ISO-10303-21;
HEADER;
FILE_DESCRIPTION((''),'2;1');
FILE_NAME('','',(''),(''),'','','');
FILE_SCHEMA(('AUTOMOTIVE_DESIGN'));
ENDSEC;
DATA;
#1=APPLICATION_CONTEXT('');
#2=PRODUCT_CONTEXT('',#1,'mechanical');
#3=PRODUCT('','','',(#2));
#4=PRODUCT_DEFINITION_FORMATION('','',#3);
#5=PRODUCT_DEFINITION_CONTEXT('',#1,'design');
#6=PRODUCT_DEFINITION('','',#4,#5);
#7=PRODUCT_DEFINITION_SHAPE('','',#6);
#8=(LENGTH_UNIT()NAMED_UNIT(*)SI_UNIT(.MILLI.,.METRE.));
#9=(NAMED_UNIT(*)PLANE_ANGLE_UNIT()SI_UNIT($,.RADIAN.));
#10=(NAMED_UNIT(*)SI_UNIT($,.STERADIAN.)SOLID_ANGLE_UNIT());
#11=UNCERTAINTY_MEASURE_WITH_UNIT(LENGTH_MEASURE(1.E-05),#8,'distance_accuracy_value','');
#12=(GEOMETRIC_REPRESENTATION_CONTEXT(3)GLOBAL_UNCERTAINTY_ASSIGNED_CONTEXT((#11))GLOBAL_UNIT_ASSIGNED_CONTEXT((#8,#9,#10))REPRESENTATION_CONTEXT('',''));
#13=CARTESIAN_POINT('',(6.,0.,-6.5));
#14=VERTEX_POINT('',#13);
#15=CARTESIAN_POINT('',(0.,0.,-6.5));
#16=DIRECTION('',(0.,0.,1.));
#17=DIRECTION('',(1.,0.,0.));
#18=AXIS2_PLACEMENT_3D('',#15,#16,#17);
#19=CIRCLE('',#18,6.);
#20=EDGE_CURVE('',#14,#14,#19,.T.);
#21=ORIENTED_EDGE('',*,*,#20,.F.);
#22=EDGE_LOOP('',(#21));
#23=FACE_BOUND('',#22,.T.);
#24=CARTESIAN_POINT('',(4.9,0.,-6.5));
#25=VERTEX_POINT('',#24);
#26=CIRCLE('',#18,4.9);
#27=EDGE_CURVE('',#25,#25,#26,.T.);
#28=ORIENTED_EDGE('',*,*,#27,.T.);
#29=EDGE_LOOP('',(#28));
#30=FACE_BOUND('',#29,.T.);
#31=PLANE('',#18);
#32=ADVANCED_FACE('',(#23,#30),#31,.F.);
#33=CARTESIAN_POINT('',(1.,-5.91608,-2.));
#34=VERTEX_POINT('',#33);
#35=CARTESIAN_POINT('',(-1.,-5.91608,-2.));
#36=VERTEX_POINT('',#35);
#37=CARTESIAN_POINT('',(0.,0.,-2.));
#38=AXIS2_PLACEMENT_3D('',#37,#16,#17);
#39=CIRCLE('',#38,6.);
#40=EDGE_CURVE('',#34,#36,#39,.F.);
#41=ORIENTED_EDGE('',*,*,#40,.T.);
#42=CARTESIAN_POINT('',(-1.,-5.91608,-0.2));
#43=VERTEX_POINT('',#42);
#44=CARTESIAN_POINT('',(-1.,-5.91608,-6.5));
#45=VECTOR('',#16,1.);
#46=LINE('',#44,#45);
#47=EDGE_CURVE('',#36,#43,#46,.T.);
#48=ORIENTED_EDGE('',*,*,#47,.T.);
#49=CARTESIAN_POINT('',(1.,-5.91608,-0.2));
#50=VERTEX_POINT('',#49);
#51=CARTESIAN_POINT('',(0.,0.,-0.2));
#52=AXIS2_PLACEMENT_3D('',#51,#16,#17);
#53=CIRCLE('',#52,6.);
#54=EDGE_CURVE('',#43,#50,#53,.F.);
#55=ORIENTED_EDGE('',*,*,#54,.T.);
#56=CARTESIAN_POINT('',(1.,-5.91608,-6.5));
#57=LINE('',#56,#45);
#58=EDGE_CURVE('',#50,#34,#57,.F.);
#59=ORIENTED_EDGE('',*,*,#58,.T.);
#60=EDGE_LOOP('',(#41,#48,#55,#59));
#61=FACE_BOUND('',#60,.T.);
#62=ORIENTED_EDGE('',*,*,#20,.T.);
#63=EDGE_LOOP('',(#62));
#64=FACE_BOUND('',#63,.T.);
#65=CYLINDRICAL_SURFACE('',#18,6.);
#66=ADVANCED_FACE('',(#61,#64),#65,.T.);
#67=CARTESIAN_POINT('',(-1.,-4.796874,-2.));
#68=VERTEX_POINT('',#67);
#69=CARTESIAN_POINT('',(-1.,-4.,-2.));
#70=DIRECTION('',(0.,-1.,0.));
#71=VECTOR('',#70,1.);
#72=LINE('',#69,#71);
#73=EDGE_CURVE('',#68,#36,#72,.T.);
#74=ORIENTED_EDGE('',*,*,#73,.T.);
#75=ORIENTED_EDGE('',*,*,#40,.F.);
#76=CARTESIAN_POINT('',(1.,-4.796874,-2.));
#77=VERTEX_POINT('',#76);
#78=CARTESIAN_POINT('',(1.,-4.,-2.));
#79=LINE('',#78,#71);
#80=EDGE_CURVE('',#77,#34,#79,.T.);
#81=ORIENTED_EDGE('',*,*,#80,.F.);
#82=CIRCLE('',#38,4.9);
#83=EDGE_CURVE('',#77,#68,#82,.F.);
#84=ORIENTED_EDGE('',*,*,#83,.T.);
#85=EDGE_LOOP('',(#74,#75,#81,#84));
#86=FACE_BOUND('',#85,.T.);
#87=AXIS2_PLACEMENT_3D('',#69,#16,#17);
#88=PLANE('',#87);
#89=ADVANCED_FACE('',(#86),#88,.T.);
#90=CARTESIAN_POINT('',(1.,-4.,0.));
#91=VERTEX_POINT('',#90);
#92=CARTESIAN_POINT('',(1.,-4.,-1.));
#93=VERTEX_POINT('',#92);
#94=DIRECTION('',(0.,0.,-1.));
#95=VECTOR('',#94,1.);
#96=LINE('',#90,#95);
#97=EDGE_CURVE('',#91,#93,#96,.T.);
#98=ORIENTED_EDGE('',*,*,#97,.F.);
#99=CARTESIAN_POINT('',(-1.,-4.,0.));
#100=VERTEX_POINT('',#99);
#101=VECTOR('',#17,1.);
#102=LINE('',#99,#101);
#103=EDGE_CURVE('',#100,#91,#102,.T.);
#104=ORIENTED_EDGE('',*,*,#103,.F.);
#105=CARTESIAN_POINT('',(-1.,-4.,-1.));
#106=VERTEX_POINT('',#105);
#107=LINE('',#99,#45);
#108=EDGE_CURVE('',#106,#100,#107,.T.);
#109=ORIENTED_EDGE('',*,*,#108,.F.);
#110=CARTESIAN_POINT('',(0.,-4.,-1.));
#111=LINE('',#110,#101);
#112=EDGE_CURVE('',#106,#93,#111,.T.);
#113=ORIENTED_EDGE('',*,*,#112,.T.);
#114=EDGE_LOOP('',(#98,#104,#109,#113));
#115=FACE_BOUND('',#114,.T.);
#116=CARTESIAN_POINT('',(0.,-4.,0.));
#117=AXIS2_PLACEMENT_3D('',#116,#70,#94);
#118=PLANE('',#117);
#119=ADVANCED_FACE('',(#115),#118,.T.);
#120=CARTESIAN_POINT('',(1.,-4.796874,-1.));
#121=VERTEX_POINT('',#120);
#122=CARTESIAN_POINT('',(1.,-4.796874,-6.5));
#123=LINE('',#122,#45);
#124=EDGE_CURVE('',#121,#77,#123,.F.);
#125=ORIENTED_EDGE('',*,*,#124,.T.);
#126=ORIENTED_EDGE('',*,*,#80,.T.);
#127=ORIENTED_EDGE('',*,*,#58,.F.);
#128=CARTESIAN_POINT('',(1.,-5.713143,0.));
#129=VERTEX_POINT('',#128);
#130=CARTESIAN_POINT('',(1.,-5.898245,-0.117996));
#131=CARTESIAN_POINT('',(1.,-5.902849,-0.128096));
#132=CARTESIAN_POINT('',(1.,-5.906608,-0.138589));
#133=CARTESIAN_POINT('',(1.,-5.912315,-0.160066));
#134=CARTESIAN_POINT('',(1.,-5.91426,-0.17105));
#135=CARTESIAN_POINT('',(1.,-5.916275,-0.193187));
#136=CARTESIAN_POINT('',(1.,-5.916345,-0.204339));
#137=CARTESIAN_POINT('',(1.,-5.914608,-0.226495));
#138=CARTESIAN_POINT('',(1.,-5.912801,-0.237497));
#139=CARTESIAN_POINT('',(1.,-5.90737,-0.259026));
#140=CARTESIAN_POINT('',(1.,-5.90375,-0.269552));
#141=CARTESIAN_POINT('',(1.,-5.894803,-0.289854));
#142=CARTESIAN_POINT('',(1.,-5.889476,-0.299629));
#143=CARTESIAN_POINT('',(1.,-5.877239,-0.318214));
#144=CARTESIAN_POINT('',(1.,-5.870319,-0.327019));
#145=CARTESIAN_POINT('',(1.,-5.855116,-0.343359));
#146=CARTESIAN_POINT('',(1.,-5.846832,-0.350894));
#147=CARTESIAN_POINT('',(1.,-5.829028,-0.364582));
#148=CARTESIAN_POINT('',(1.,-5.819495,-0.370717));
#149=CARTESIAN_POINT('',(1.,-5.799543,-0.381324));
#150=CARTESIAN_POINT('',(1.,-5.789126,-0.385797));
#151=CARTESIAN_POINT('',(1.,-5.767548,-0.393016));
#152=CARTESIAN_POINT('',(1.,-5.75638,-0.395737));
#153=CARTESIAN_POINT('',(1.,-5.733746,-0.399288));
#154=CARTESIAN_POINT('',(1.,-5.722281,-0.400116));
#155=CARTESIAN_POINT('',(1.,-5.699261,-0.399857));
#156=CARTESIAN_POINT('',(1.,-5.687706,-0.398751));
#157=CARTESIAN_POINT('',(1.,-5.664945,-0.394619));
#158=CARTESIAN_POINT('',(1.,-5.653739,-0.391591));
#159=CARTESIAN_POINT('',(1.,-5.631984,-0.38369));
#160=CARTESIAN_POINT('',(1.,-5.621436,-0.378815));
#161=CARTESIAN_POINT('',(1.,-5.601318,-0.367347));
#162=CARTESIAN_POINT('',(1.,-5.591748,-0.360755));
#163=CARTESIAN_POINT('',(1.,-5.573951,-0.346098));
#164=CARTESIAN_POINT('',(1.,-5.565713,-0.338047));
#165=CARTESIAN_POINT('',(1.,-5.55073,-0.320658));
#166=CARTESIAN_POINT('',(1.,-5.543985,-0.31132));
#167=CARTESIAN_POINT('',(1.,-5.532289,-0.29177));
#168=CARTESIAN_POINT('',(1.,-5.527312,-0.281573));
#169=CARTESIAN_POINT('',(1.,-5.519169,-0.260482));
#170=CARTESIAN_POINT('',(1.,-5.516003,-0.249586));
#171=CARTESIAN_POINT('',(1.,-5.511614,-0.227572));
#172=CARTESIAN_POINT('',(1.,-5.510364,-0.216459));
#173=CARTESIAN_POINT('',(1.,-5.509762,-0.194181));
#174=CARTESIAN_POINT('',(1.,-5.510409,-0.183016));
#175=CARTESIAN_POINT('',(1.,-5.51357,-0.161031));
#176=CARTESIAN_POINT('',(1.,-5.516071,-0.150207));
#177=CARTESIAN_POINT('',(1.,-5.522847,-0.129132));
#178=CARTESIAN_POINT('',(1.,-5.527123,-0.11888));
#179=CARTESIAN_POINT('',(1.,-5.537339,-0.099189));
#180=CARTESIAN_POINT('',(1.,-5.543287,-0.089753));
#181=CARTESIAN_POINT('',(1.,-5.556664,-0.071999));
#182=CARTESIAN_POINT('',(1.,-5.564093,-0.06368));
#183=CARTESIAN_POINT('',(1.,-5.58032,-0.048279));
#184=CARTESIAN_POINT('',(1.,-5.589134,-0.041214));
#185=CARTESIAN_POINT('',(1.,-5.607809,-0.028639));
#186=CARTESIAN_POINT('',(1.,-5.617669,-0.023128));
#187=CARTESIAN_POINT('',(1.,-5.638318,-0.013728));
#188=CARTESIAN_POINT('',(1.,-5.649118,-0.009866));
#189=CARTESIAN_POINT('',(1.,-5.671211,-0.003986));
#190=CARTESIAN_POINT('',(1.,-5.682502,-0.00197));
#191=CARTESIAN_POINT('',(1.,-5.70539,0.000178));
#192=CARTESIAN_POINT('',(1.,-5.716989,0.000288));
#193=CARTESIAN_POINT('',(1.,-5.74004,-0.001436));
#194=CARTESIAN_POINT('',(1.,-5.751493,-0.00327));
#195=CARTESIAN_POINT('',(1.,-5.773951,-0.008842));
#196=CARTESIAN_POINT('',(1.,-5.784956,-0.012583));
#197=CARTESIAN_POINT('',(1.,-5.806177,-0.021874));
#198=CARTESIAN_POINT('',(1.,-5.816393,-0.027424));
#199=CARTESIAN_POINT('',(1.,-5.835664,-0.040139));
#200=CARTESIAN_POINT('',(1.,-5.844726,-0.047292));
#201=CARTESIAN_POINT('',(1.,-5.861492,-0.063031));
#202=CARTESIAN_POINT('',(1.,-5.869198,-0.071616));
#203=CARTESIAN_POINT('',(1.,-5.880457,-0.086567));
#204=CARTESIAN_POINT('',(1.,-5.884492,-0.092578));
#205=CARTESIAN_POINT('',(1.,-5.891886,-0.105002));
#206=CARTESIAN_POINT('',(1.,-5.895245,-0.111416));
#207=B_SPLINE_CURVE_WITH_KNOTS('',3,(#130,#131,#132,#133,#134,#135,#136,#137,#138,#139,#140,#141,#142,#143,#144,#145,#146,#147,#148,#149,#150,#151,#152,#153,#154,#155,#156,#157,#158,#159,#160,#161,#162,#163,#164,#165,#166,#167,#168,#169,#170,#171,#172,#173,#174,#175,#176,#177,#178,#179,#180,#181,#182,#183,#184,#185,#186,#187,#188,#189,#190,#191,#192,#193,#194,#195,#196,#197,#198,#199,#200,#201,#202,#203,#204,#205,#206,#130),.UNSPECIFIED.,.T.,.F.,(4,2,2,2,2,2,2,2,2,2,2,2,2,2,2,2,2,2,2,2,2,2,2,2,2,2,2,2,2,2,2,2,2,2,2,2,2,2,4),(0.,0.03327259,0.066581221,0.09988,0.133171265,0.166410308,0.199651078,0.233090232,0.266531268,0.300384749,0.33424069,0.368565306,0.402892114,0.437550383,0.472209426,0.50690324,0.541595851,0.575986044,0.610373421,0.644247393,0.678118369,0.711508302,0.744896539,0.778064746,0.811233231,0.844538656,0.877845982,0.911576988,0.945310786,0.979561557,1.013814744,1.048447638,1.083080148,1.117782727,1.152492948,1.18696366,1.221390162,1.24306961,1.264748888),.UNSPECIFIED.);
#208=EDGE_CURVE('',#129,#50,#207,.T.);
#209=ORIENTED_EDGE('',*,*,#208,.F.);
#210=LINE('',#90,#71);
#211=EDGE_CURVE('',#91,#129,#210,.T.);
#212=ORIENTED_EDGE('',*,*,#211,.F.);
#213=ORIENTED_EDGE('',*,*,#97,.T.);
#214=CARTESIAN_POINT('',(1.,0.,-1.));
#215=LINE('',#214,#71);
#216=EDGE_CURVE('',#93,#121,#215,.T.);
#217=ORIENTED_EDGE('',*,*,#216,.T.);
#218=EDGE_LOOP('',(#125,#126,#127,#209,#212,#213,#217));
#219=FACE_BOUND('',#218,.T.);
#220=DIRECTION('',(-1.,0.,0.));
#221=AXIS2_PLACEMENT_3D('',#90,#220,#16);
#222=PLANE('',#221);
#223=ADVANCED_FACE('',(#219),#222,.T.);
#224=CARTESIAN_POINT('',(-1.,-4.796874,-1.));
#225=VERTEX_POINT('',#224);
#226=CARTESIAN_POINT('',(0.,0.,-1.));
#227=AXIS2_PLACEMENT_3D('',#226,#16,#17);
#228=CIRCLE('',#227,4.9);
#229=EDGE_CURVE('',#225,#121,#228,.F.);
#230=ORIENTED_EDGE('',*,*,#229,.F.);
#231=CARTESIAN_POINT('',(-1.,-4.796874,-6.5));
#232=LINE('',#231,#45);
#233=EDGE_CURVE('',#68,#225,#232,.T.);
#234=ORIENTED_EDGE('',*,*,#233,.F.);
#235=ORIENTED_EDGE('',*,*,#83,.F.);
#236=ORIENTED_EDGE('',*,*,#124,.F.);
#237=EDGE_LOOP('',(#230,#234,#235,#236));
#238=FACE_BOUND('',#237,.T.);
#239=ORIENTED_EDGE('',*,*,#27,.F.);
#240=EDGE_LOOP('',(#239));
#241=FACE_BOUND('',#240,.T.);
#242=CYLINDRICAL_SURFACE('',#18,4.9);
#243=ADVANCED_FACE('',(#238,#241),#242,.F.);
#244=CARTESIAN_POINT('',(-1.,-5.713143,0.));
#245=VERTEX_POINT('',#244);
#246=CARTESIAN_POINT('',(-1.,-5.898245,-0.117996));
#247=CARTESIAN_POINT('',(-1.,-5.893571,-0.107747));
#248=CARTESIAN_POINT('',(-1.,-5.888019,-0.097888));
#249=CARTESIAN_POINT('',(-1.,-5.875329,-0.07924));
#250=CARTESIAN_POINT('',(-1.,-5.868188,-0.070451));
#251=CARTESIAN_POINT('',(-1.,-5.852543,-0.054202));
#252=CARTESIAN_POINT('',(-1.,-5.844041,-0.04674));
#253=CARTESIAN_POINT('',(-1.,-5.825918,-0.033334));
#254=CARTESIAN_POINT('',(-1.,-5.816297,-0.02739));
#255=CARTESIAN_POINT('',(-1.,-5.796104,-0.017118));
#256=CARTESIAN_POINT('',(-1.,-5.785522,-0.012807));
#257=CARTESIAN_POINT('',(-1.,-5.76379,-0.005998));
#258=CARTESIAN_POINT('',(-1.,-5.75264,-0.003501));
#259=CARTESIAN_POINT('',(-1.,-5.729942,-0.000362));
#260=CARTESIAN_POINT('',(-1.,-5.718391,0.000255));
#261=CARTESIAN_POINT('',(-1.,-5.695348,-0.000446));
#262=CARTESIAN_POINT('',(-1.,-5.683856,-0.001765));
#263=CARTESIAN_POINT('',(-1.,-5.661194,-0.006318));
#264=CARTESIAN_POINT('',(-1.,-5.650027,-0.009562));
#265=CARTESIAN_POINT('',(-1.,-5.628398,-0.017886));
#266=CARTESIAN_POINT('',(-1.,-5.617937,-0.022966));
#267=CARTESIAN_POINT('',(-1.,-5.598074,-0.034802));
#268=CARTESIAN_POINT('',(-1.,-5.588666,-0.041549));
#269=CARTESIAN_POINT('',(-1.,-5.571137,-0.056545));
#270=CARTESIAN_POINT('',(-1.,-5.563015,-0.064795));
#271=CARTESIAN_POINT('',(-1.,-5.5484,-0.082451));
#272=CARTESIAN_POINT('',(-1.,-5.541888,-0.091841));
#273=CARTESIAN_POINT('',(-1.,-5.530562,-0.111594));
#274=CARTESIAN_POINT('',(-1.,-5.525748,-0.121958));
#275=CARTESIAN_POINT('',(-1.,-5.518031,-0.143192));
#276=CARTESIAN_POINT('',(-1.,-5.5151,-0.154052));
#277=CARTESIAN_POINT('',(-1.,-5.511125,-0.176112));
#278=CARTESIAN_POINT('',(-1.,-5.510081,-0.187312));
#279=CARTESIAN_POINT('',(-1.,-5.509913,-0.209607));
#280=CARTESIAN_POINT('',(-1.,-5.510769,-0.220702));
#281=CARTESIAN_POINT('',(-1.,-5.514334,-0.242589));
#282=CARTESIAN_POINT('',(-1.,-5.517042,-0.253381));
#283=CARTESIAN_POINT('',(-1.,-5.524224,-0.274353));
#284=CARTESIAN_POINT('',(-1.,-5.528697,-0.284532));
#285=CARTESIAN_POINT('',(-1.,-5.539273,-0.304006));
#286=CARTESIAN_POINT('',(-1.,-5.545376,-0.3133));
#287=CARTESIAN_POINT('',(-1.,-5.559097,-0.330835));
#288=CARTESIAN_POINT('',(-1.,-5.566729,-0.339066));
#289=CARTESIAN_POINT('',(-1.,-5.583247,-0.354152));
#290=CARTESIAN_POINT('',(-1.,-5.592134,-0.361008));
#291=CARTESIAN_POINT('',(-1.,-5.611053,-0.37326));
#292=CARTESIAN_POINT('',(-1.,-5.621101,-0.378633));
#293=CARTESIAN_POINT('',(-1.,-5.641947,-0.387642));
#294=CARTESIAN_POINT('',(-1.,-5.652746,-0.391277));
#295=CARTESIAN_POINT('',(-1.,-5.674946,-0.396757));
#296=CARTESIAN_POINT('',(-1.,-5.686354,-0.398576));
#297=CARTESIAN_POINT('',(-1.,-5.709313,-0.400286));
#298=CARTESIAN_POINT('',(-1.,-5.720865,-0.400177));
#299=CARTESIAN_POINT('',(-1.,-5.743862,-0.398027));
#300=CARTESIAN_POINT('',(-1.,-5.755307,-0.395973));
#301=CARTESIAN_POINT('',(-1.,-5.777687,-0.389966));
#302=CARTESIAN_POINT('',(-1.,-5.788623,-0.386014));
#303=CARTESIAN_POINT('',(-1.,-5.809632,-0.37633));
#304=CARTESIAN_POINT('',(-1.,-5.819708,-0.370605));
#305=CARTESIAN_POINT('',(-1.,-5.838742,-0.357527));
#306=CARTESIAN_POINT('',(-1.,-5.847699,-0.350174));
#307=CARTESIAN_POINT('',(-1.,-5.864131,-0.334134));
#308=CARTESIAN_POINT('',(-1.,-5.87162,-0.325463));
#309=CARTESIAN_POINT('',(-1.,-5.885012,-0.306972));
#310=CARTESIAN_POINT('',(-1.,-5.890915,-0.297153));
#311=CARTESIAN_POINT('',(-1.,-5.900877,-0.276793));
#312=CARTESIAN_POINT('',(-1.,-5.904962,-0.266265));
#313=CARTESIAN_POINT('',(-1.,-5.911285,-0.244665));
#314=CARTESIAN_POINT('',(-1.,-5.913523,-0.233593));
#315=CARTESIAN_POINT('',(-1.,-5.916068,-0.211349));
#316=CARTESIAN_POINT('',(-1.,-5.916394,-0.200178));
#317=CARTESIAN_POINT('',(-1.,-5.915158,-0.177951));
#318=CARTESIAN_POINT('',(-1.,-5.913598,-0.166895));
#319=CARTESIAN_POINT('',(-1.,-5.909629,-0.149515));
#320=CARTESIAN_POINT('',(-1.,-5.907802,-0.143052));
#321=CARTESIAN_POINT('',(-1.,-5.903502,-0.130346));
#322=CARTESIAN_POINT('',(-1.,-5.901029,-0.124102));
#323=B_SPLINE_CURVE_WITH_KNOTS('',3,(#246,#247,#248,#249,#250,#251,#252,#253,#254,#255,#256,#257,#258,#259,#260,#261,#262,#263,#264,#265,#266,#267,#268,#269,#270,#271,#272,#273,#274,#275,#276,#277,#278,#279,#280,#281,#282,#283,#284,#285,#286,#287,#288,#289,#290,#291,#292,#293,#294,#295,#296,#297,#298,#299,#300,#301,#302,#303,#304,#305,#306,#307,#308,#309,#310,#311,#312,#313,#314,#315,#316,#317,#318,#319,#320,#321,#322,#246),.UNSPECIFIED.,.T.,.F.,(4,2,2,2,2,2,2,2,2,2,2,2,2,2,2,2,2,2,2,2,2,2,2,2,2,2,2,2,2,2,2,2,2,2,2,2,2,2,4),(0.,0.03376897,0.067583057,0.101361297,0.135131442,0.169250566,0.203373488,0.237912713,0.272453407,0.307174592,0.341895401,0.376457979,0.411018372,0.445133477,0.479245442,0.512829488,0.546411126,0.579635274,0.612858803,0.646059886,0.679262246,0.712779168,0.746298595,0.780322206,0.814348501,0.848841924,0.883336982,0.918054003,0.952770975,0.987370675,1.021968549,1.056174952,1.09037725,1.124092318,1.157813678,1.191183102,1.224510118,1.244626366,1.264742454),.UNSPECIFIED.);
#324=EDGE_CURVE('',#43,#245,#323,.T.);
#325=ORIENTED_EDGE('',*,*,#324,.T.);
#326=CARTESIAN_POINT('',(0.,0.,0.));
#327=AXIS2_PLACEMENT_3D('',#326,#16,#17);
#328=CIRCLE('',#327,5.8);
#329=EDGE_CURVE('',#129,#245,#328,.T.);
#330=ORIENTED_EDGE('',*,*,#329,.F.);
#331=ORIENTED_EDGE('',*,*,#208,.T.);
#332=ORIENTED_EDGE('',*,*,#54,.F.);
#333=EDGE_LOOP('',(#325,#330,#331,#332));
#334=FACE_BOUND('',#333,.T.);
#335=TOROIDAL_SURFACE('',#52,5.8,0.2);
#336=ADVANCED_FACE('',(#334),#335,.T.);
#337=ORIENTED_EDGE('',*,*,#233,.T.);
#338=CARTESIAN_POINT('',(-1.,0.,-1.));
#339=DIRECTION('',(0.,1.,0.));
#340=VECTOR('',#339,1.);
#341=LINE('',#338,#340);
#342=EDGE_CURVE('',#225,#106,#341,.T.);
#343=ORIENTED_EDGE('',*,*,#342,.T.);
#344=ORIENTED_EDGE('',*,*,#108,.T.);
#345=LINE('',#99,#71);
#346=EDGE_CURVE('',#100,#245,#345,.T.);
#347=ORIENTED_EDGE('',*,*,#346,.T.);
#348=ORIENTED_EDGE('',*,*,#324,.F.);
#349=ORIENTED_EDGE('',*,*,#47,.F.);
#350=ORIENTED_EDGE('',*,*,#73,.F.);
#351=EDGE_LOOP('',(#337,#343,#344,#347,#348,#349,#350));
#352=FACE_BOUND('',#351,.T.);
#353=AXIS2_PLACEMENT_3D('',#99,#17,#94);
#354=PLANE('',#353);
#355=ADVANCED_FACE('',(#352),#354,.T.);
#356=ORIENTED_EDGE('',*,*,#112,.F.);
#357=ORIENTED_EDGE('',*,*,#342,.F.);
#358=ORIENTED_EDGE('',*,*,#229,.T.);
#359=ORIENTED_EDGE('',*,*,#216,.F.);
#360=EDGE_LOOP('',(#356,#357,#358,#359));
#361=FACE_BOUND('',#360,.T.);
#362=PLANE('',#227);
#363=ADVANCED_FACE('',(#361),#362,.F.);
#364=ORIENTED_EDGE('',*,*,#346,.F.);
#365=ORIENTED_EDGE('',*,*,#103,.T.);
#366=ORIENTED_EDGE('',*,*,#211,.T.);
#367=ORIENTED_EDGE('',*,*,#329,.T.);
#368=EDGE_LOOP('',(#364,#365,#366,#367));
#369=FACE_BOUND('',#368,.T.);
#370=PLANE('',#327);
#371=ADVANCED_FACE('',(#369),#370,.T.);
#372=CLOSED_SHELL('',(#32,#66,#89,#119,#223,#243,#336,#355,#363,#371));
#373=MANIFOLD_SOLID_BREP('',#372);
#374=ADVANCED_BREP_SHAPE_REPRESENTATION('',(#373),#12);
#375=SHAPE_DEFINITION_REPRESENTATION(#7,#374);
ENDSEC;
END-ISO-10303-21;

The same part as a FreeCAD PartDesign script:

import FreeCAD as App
import Part
import Sketcher

V = App.Vector


def edges_at(feature, points):
    """Names of the edges that pass closest to the given points."""
    edges = feature.Shape.Edges
    near = lambda p: min(range(len(edges)), key=lambda i: edges[i].distToShape(Part.Vertex(*p))[0])
    return sorted({f"Edge{near(p) + 1}" for p in points})


def add_polygon(sketch, points):
    """Adds a closed chain of lines whose ends are joined by coincident constraints."""
    first, n = sketch.GeometryCount, len(points)
    for a, b in zip(points, points[1:] + points[:1]):
        sketch.addGeometry(Part.LineSegment(App.Vector(*a, 0), App.Vector(*b, 0)), False)
    for i in range(n):
        sketch.addConstraint(Sketcher.Constraint("Coincident", first + i, 2, first + (i + 1) % n, 1))

doc = App.newDocument("Part")
body = doc.addObject("PartDesign::Body", "Body")

# Sketch on XY plane
sketch1 = body.newObject("Sketcher::SketchObject", "Sketch")
sketch1.AttachmentSupport = (doc.getObject("XY_Plane"), [""])
sketch1.MapMode = "FlatFace"
sketch1.addGeometry([
    Part.Circle(V(0, 0, 0), V(0, 0, 1), 6),
    Part.Circle(V(0, 0, 0), V(0, 0, 1), 4.9),
], False)
sketch1.addConstraint([
    Sketcher.Constraint("Coincident", 0, 3, -1, 1),
    Sketcher.Constraint("Coincident", 1, 3, -1, 1),
    Sketcher.Constraint("Diameter", 0, 12.0),
    Sketcher.Constraint("Diameter", 1, 9.8),
])
pad1 = body.newObject("PartDesign::Pad", "Pad")
pad1.Profile = sketch1
pad1.Length = 6.5
pad1.Reversed = True

# Sketch on XY plane
sketch2 = body.newObject("Sketcher::SketchObject", "Sketch001")
sketch2.AttachmentSupport = (doc.getObject("XY_Plane"), [""])
sketch2.MapMode = "FlatFace"
sketch2.addGeometry(Part.Circle(V(0, 0, 0), V(0, 0, 1), 4.9), False)
sketch2.addConstraint([
    Sketcher.Constraint("Coincident", 0, 3, -1, 1),
    Sketcher.Constraint("Diameter", 0, 9.8),
])
pad2 = body.newObject("PartDesign::Pad", "Pad001")
pad2.Profile = sketch2
pad2.Length = 1
pad2.Reversed = True
doc.recompute()

fillet = body.newObject("PartDesign::Fillet", "Fillet")
fillet.Base = (pad2, edges_at(pad2, [(-6, 0, 0)]))
fillet.Radius = 0.2

# Sketch on XZ plane
sketch3 = body.newObject("Sketcher::SketchObject", "Sketch002")
sketch3.AttachmentSupport = (doc.getObject("XZ_Plane"), [""])
sketch3.MapMode = "FlatFace"
sketch3.AttachmentOffset = App.Placement(V(0, 0, 6), App.Rotation())
add_polygon(sketch3, [(-1, -2), (-1, 0), (1, 0), (1, -2)])  # lines 0-3
sketch3.addConstraint([
    Sketcher.Constraint("Vertical", 0),
    Sketcher.Constraint("Horizontal", 1),
    Sketcher.Constraint("Vertical", 2),
    Sketcher.Constraint("Horizontal", 3),
    Sketcher.Constraint("Symmetric", 0, 2, 1, 2, -1, 1),
    Sketcher.Constraint("Equal", 3, 0),
    Sketcher.Constraint("DistanceX", 1, 1, 1, 2, 2.0),
])
pocket1 = body.newObject("PartDesign::Pocket", "Pocket")
pocket1.Profile = sketch3
pocket1.Length = 2

doc.recompute()
